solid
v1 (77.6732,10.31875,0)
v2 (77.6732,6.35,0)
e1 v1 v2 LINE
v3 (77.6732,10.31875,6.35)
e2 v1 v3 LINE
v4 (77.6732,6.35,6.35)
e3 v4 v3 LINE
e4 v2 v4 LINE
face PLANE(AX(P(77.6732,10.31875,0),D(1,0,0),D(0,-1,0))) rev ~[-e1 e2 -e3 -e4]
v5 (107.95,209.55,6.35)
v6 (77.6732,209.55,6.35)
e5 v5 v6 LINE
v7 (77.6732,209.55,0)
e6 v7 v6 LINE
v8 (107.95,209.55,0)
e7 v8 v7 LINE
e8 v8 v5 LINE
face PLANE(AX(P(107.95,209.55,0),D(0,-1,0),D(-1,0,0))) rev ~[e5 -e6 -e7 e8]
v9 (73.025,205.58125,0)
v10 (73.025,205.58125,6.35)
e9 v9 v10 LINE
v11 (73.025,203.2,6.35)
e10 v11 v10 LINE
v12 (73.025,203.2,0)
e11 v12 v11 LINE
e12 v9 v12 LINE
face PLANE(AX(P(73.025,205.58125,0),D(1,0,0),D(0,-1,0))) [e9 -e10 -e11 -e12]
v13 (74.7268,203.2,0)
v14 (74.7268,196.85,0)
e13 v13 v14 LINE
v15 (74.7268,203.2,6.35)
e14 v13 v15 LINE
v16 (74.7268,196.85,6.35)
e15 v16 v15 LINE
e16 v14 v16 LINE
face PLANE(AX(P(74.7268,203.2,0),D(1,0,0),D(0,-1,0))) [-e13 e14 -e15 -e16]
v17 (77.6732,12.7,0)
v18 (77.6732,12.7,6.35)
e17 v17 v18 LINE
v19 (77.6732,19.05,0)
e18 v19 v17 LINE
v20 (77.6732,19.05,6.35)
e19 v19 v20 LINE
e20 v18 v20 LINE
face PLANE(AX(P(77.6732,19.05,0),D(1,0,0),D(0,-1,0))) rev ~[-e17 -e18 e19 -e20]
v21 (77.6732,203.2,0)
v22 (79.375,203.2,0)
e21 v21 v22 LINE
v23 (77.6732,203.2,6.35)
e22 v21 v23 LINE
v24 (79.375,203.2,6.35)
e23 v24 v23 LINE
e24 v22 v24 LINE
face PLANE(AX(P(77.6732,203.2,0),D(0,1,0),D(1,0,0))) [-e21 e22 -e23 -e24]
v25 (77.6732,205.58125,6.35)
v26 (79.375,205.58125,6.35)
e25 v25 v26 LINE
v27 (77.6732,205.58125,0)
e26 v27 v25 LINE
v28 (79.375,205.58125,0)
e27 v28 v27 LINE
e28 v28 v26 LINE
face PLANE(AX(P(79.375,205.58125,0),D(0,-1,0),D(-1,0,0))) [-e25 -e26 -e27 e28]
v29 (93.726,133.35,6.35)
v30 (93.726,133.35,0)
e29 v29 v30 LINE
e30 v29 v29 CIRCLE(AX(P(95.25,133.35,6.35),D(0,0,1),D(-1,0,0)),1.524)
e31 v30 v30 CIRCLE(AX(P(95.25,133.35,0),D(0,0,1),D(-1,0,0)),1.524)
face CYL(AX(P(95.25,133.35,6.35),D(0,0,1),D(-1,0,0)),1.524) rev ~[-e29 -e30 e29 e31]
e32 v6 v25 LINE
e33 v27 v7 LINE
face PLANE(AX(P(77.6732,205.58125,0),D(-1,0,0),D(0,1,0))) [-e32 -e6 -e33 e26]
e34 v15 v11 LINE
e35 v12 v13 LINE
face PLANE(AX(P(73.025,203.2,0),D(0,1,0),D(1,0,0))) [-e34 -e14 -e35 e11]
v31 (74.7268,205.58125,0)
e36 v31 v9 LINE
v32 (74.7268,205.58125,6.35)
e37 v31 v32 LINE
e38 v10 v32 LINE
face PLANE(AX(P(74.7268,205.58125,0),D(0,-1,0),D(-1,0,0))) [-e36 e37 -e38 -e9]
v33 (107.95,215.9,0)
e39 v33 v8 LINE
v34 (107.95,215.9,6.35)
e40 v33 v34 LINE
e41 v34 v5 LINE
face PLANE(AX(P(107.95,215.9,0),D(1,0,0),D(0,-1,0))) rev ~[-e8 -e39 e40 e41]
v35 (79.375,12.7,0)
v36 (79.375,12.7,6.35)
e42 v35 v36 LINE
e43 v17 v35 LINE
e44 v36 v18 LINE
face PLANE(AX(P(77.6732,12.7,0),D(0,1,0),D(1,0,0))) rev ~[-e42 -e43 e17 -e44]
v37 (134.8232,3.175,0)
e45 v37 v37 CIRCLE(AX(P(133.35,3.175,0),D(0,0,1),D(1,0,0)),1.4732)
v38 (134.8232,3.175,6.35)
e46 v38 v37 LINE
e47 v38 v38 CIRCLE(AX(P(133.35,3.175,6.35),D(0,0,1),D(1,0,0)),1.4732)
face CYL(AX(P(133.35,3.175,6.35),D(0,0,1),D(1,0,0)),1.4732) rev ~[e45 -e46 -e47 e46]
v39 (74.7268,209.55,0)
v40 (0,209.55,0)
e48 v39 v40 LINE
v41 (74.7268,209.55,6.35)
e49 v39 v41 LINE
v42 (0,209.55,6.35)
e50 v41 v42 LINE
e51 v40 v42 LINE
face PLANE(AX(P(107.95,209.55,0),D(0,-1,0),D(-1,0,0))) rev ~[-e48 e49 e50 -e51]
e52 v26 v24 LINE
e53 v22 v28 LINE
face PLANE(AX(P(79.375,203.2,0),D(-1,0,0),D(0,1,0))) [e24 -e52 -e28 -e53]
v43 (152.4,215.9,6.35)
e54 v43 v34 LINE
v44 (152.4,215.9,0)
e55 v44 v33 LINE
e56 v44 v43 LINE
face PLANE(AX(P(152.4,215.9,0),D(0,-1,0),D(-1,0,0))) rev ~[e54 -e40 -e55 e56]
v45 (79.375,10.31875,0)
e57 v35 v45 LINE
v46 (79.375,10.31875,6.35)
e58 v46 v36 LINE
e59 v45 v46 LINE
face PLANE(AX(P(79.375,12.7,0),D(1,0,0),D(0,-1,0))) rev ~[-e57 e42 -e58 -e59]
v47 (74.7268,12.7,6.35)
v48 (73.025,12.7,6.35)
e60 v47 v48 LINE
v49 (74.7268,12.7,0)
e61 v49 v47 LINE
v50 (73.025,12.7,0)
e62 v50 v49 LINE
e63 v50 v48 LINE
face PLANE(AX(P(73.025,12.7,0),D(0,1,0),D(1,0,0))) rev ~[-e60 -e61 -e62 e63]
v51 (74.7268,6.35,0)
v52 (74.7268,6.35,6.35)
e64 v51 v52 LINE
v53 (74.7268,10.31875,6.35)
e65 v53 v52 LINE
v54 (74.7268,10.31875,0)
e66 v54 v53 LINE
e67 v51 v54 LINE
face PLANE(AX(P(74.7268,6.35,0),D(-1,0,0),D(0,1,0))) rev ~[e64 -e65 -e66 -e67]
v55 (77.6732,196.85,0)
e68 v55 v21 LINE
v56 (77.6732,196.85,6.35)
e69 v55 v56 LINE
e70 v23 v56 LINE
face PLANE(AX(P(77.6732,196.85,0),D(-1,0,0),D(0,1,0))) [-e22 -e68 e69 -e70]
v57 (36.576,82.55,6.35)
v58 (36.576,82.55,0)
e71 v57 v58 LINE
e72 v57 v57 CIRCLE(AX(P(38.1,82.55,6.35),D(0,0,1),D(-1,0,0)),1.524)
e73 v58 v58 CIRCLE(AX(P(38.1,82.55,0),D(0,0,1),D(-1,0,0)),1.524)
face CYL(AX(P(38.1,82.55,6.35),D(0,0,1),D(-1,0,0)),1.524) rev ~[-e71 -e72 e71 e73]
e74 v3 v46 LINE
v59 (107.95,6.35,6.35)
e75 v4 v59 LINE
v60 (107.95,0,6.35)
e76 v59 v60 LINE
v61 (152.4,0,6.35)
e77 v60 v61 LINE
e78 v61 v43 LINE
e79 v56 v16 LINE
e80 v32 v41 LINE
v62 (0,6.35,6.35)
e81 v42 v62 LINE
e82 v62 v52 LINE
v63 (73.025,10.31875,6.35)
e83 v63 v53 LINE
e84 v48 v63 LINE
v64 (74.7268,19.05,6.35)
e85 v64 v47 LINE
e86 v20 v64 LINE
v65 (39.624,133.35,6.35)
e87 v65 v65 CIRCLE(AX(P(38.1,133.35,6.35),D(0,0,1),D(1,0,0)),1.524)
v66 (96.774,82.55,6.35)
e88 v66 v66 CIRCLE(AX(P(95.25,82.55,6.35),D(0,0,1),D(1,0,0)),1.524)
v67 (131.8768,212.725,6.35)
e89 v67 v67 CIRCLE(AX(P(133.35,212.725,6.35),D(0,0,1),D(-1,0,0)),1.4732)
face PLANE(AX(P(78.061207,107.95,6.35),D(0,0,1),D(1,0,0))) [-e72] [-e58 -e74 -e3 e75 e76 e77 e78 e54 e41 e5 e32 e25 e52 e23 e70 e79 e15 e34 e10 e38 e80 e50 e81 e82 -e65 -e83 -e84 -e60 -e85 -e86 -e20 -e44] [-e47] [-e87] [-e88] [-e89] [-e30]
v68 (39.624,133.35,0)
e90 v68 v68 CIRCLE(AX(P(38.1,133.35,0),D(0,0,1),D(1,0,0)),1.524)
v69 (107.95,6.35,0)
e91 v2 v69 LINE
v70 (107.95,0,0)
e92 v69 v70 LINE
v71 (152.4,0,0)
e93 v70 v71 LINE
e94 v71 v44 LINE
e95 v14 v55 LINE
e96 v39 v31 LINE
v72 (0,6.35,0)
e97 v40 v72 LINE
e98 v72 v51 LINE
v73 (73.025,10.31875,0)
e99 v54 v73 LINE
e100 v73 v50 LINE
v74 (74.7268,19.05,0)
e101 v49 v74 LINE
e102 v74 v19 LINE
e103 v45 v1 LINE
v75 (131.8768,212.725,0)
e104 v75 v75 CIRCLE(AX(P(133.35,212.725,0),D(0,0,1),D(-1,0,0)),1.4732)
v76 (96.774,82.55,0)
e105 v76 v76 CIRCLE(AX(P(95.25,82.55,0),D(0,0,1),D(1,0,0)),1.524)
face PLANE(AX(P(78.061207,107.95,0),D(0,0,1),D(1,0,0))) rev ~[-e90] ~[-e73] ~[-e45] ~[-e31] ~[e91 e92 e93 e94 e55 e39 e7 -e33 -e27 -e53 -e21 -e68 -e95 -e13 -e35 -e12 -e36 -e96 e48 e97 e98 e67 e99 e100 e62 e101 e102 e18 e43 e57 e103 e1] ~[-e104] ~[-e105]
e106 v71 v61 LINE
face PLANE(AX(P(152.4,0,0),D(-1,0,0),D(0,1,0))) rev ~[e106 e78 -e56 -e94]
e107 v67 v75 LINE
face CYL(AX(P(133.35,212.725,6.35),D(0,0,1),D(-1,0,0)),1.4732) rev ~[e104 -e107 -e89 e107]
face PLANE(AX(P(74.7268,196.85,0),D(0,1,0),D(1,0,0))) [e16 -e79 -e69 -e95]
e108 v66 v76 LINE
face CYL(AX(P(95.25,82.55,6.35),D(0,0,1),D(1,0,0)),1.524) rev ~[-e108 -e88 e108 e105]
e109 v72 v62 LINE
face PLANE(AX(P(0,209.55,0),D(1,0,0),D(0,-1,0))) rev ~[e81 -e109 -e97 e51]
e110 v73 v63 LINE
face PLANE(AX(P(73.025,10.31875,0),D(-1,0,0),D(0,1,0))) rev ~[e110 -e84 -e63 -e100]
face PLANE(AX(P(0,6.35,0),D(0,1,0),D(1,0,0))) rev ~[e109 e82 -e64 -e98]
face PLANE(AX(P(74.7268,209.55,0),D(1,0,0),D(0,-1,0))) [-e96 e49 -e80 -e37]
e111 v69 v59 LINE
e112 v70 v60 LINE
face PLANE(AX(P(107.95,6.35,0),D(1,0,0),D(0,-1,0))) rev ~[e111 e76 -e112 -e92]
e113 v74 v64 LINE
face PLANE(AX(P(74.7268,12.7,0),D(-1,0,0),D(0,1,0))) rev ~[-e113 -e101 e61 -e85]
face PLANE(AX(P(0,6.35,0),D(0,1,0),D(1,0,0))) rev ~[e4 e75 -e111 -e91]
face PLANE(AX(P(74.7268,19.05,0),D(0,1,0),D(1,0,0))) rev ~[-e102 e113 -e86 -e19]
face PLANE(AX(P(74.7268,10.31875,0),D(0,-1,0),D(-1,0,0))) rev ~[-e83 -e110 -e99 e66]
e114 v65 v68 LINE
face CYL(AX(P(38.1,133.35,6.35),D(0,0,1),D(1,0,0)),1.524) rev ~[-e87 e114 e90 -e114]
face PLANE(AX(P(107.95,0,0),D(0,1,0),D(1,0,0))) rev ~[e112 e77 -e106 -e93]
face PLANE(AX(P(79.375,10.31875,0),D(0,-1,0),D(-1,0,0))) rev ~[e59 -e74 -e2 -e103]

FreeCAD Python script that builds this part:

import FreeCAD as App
import Part
import Sketcher
Q = App.Units.Quantity

doc = App.newDocument("Part")
body = doc.addObject("PartDesign::Body", "Body")

# Sketch on XY plane
sketch1 = body.newObject("Sketcher::SketchObject", "Sketch")
sketch1.AttachmentSupport = (doc.getObject("XY_Plane"), [""])
sketch1.MapMode = "FlatFace"
sketch1.addGeometry(Part.LineSegment(App.Vector(108, 216, 0), App.Vector(108, 210, 0)), False)
sketch1.addGeometry(Part.LineSegment(App.Vector(108, 210, 0), App.Vector(0, 210, 0)), False)
sketch1.addGeometry(Part.LineSegment(App.Vector(0, 210, 0), App.Vector(0, 6, 0)), False)
sketch1.addGeometry(Part.LineSegment(App.Vector(0, 6, 0), App.Vector(108, 6, 0)), False)
sketch1.addGeometry(Part.LineSegment(App.Vector(108, 6, 0), App.Vector(108, 0, 0)), False)
sketch1.addGeometry(Part.LineSegment(App.Vector(108, 0, 0), App.Vector(152, 0, 0)), False)
sketch1.addGeometry(Part.LineSegment(App.Vector(152, 0, 0), App.Vector(152, 216, 0)), False)
sketch1.addGeometry(Part.LineSegment(App.Vector(152, 216, 0), App.Vector(108, 216, 0)), False)
sketch1.addConstraint(Sketcher.Constraint("Coincident", 0, 2, 1, 1))
sketch1.addConstraint(Sketcher.Constraint("Coincident", 1, 2, 2, 1))
sketch1.addConstraint(Sketcher.Constraint("Coincident", 2, 2, 3, 1))
sketch1.addConstraint(Sketcher.Constraint("Coincident", 3, 2, 4, 1))
sketch1.addConstraint(Sketcher.Constraint("Coincident", 4, 2, 5, 1))
sketch1.addConstraint(Sketcher.Constraint("Coincident", 5, 2, 6, 1))
sketch1.addConstraint(Sketcher.Constraint("Coincident", 6, 2, 7, 1))
sketch1.addConstraint(Sketcher.Constraint("Coincident", 7, 2, 0, 1))
sketch1.addConstraint(Sketcher.Constraint("Vertical", 0))
sketch1.addConstraint(Sketcher.Constraint("Horizontal", 1))
sketch1.addConstraint(Sketcher.Constraint("Vertical", 2))
sketch1.addConstraint(Sketcher.Constraint("Horizontal", 3))
sketch1.addConstraint(Sketcher.Constraint("Vertical", 4))
sketch1.addConstraint(Sketcher.Constraint("Horizontal", 5))
sketch1.addConstraint(Sketcher.Constraint("Vertical", 6))
sketch1.addConstraint(Sketcher.Constraint("Horizontal", 7))
sketch1.addConstraint(Sketcher.Constraint("PointOnObject", 1, 2, -2))
sketch1.addConstraint(Sketcher.Constraint("PointOnObject", 4, 2, -1))
sketch1.addConstraint(Sketcher.Constraint("Vertical", 0, 2, 3, 2))
sketch1.addConstraint(Sketcher.Constraint("Equal", 0, 4))
sketch1.addConstraint(Sketcher.Constraint("DistanceY", 2, 2, 2, 1, Q("8 in")))
sketch1.addConstraint(Sketcher.Constraint("DistanceY", 6, 1, 6, 2, Q("8.5 in")))
sketch1.addConstraint(Sketcher.Constraint("DistanceX", -1, 1, 5, 2, Q("6 in")))
sketch1.addConstraint(Sketcher.Constraint("DistanceX", 1, 2, 1, 1, Q("4.25 in")))
pad1 = body.newObject("PartDesign::Pad", "Pad")
pad1.Profile = sketch1
pad1.Length = Q("0.25 in")

# Sketch on XY plane
sketch2 = body.newObject("Sketcher::SketchObject", "Sketch001")
sketch2.AttachmentSupport = (doc.getObject("XY_Plane"), [""])
sketch2.MapMode = "FlatFace"
sketch2.AttachmentOffset = App.Placement(App.Vector(0, 0, 0.25 * 25.4), App.Rotation())
sketch2.addGeometry(Part.Circle(App.Vector(133.3, 212.7, 0), App.Vector(0, 0, 1), 1.5), False)
sketch2.addGeometry(Part.Circle(App.Vector(133.3, 3.2, 0), App.Vector(0, 0, 1), 1.5), False)
sketch2.addConstraint(Sketcher.Constraint("Equal", 0, 1))
sketch2.addConstraint(Sketcher.Constraint("Vertical", 0, 3, 1, 3))
sketch2.addConstraint(Sketcher.Constraint("Diameter", 0, Q("0.116 in")))
sketch2.addConstraint(Sketcher.Constraint("DistanceX", -1, 1, 0, 3, Q("5.25 in")))
sketch2.addConstraint(Sketcher.Constraint("DistanceY", 1, 3, 0, 3, Q("8.25 in")))
sketch2.addConstraint(Sketcher.Constraint("DistanceY", -1, 1, 0, 3, Q("8.375 in")))
pocket1 = body.newObject("PartDesign::Pocket", "Pocket")
pocket1.Profile = sketch2
pocket1.Type = "ThroughAll"

# Sketch on XY plane
sketch3 = body.newObject("Sketcher::SketchObject", "Sketch002")
sketch3.AttachmentSupport = (doc.getObject("XY_Plane"), [""])
sketch3.MapMode = "FlatFace"
sketch3.AttachmentOffset = App.Placement(App.Vector(0, 0, 0.25 * 25.4), App.Rotation())
sketch3.addGeometry(Part.Circle(App.Vector(95.2, 133.3, 0), App.Vector(0, 0, 1), 1.5), False)
sketch3.addGeometry(Part.Circle(App.Vector(95.2, 82.5, 0), App.Vector(0, 0, 1), 1.5), False)
sketch3.addConstraint(Sketcher.Constraint("Equal", 0, 1))
sketch3.addConstraint(Sketcher.Constraint("Vertical", 0, 3, 1, 3))
sketch3.addConstraint(Sketcher.Constraint("Diameter", 0, Q("0.12 in")))
sketch3.addConstraint(Sketcher.Constraint("DistanceY", 1, 3, 0, 3, Q("2 in")))
sketch3.addConstraint(Sketcher.Constraint("DistanceX", -1, 1, 0, 3, Q("3.75 in")))
sketch3.addConstraint(Sketcher.Constraint("DistanceY", -1, 1, 0, 3, Q("5.25 in")))
pocket2 = body.newObject("PartDesign::Pocket", "Pocket001")
pocket2.Profile = sketch3
pocket2.Type = "ThroughAll"

# Sketch on XY plane
sketch4 = body.newObject("Sketcher::SketchObject", "Sketch003")
sketch4.AttachmentSupport = (doc.getObject("XY_Plane"), [""])
sketch4.MapMode = "FlatFace"
sketch4.AttachmentOffset = App.Placement(App.Vector(0, 0, 0.25 * 25.4), App.Rotation())
sketch4.addGeometry(Part.Circle(App.Vector(38.1, 133.3, 0), App.Vector(0, 0, 1), 1.5), False)
sketch4.addGeometry(Part.Circle(App.Vector(38.1, 82.5, 0), App.Vector(0, 0, 1), 1.5), False)
sketch4.addConstraint(Sketcher.Constraint("Equal", 0, 1))
sketch4.addConstraint(Sketcher.Constraint("Vertical", 0, 3, 1, 3))
sketch4.addConstraint(Sketcher.Constraint("Diameter", 0, Q("0.12 in")))
sketch4.addConstraint(Sketcher.Constraint("DistanceY", 1, 3, 0, 3, Q("2 in")))
sketch4.addConstraint(Sketcher.Constraint("DistanceX", -1, 1, 0, 3, Q("1.5 in")))
sketch4.addConstraint(Sketcher.Constraint("DistanceY", -1, 1, 0, 3, Q("5.25 in")))
pocket3 = body.newObject("PartDesign::Pocket", "Pocket002")
pocket3.Profile = sketch4
pocket3.Type = "ThroughAll"

# Sketch on XY plane
sketch5 = body.newObject("Sketcher::SketchObject", "Sketch004")
sketch5.AttachmentSupport = (doc.getObject("XY_Plane"), [""])
sketch5.MapMode = "FlatFace"
sketch5.addGeometry(Part.LineSegment(App.Vector(77.7, 6.3, 0), App.Vector(74.7, 6.3, 0)), False)
sketch5.addGeometry(Part.LineSegment(App.Vector(74.7, 6.3, 0), App.Vector(74.7, 10.3, 0)), False)
sketch5.addGeometry(Part.LineSegment(App.Vector(74.7, 10.3, 0), App.Vector(73, 10.3, 0)), False)
sketch5.addGeometry(Part.LineSegment(App.Vector(73, 10.3, 0), App.Vector(73, 12.7, 0)), False)
sketch5.addGeometry(Part.LineSegment(App.Vector(73, 12.7, 0), App.Vector(74.7, 12.7, 0)), False)
sketch5.addGeometry(Part.LineSegment(App.Vector(74.7, 12.7, 0), App.Vector(74.7, 19.1, 0)), False)
sketch5.addGeometry(Part.LineSegment(App.Vector(74.7, 19.1, 0), App.Vector(77.7, 19.1, 0)), False)
sketch5.addGeometry(Part.LineSegment(App.Vector(77.7, 19.1, 0), App.Vector(77.7, 12.7, 0)), False)
sketch5.addGeometry(Part.LineSegment(App.Vector(77.7, 12.7, 0), App.Vector(79.4, 12.7, 0)), False)
sketch5.addGeometry(Part.LineSegment(App.Vector(79.4, 12.7, 0), App.Vector(79.4, 10.3, 0)), False)
sketch5.addGeometry(Part.LineSegment(App.Vector(79.4, 10.3, 0), App.Vector(77.7, 10.3, 0)), False)
sketch5.addGeometry(Part.LineSegment(App.Vector(77.7, 10.3, 0), App.Vector(77.7, 6.3, 0)), False)
sketch5.addGeometry(Part.LineSegment(App.Vector(73, 203.2, 0), App.Vector(73, 205.6, 0)), False)
sketch5.addGeometry(Part.LineSegment(App.Vector(73, 205.6, 0), App.Vector(74.7, 205.6, 0)), False)
sketch5.addGeometry(Part.LineSegment(App.Vector(74.7, 205.6, 0), App.Vector(74.7, 209.6, 0)), False)
sketch5.addGeometry(Part.LineSegment(App.Vector(74.7, 209.6, 0), App.Vector(77.7, 209.6, 0)), False)
sketch5.addGeometry(Part.LineSegment(App.Vector(77.7, 209.6, 0), App.Vector(77.7, 205.6, 0)), False)
sketch5.addGeometry(Part.LineSegment(App.Vector(77.7, 205.6, 0), App.Vector(79.4, 205.6, 0)), False)
sketch5.addGeometry(Part.LineSegment(App.Vector(79.4, 205.6, 0), App.Vector(79.4, 203.2, 0)), False)
sketch5.addGeometry(Part.LineSegment(App.Vector(79.4, 203.2, 0), App.Vector(77.7, 203.2, 0)), False)
sketch5.addGeometry(Part.LineSegment(App.Vector(77.7, 203.2, 0), App.Vector(77.7, 196.8, 0)), False)
sketch5.addGeometry(Part.LineSegment(App.Vector(77.7, 196.8, 0), App.Vector(74.7, 196.8, 0)), False)
sketch5.addGeometry(Part.LineSegment(App.Vector(74.7, 196.8, 0), App.Vector(74.7, 203.2, 0)), False)
sketch5.addGeometry(Part.LineSegment(App.Vector(74.7, 203.2, 0), App.Vector(73, 203.2, 0)), False)
sketch5.addConstraint(Sketcher.Constraint("Coincident", 0, 2, 1, 1))
sketch5.addConstraint(Sketcher.Constraint("Coincident", 1, 2, 2, 1))
sketch5.addConstraint(Sketcher.Constraint("Coincident", 2, 2, 3, 1))
sketch5.addConstraint(Sketcher.Constraint("Coincident", 3, 2, 4, 1))
sketch5.addConstraint(Sketcher.Constraint("Coincident", 4, 2, 5, 1))
sketch5.addConstraint(Sketcher.Constraint("Coincident", 5, 2, 6, 1))
sketch5.addConstraint(Sketcher.Constraint("Coincident", 6, 2, 7, 1))
sketch5.addConstraint(Sketcher.Constraint("Coincident", 7, 2, 8, 1))
sketch5.addConstraint(Sketcher.Constraint("Coincident", 8, 2, 9, 1))
sketch5.addConstraint(Sketcher.Constraint("Coincident", 9, 2, 10, 1))
sketch5.addConstraint(Sketcher.Constraint("Coincident", 10, 2, 11, 1))
sketch5.addConstraint(Sketcher.Constraint("Coincident", 11, 2, 0, 1))
sketch5.addConstraint(Sketcher.Constraint("Coincident", 12, 2, 13, 1))
sketch5.addConstraint(Sketcher.Constraint("Coincident", 13, 2, 14, 1))
sketch5.addConstraint(Sketcher.Constraint("Coincident", 14, 2, 15, 1))
sketch5.addConstraint(Sketcher.Constraint("Coincident", 15, 2, 16, 1))
sketch5.addConstraint(Sketcher.Constraint("Coincident", 16, 2, 17, 1))
sketch5.addConstraint(Sketcher.Constraint("Coincident", 17, 2, 18, 1))
sketch5.addConstraint(Sketcher.Constraint("Coincident", 18, 2, 19, 1))
sketch5.addConstraint(Sketcher.Constraint("Coincident", 19, 2, 20, 1))
sketch5.addConstraint(Sketcher.Constraint("Coincident", 20, 2, 21, 1))
sketch5.addConstraint(Sketcher.Constraint("Coincident", 21, 2, 22, 1))
sketch5.addConstraint(Sketcher.Constraint("Coincident", 22, 2, 23, 1))
sketch5.addConstraint(Sketcher.Constraint("Coincident", 23, 2, 12, 1))
sketch5.addConstraint(Sketcher.Constraint("Horizontal", 0))
sketch5.addConstraint(Sketcher.Constraint("Vertical", 1))
sketch5.addConstraint(Sketcher.Constraint("Horizontal", 2))
sketch5.addConstraint(Sketcher.Constraint("Vertical", 3))
sketch5.addConstraint(Sketcher.Constraint("Horizontal", 4))
sketch5.addConstraint(Sketcher.Constraint("Vertical", 5))
sketch5.addConstraint(Sketcher.Constraint("Horizontal", 6))
sketch5.addConstraint(Sketcher.Constraint("Vertical", 7))
sketch5.addConstraint(Sketcher.Constraint("Horizontal", 8))
sketch5.addConstraint(Sketcher.Constraint("Vertical", 9))
sketch5.addConstraint(Sketcher.Constraint("Horizontal", 10))
sketch5.addConstraint(Sketcher.Constraint("Vertical", 11))
sketch5.addConstraint(Sketcher.Constraint("Vertical", 12))
sketch5.addConstraint(Sketcher.Constraint("Horizontal", 13))
sketch5.addConstraint(Sketcher.Constraint("Vertical", 14))
sketch5.addConstraint(Sketcher.Constraint("Horizontal", 15))
sketch5.addConstraint(Sketcher.Constraint("Vertical", 16))
sketch5.addConstraint(Sketcher.Constraint("Horizontal", 17))
sketch5.addConstraint(Sketcher.Constraint("Vertical", 18))
sketch5.addConstraint(Sketcher.Constraint("Horizontal", 19))
sketch5.addConstraint(Sketcher.Constraint("Vertical", 20))
sketch5.addConstraint(Sketcher.Constraint("Horizontal", 21))
sketch5.addConstraint(Sketcher.Constraint("Vertical", 22))
sketch5.addConstraint(Sketcher.Constraint("Horizontal", 23))
sketch5.addConstraint(Sketcher.Constraint("Horizontal", 4, 2, 7, 2))
sketch5.addConstraint(Sketcher.Constraint("Horizontal", 2, 2, 9, 2))
sketch5.addConstraint(Sketcher.Constraint("Horizontal", 13, 2, 16, 2))
sketch5.addConstraint(Sketcher.Constraint("Horizontal", 19, 2, 22, 2))
sketch5.addConstraint(Sketcher.Constraint("Vertical", 1, 2, 4, 2))
sketch5.addConstraint(Sketcher.Constraint("Vertical", 7, 2, 10, 2))
sketch5.addConstraint(Sketcher.Constraint("Vertical", 3, 2, 12, 2))
sketch5.addConstraint(Sketcher.Constraint("Vertical", 5, 2, 13, 2))
sketch5.addConstraint(Sketcher.Constraint("Vertical", 11, 2, 15, 2))
sketch5.addConstraint(Sketcher.Constraint("Vertical", 9, 2, 17, 2))
sketch5.addConstraint(Sketcher.Constraint("Vertical", 16, 2, 19, 2))
sketch5.addConstraint(Sketcher.Constraint("Vertical", 14, 2, 21, 2))
sketch5.addConstraint(Sketcher.Constraint("Equal", 4, 8))
sketch5.addConstraint(Sketcher.Constraint("Equal", 9, 12))
sketch5.addConstraint(Sketcher.Constraint("Equal", 11, 14))
sketch5.addConstraint(Sketcher.Constraint("Equal", 7, 20))
sketch5.addConstraint(Sketcher.Constraint("DistanceY", -1, 1, 18, 2, Q("8 in")))
sketch5.addConstraint(Sketcher.Constraint("DistanceY", 5, 1, 5, 2, Q("0.25 in")))
sketch5.addConstraint(Sketcher.Constraint("DistanceY", -1, 1, 3, 2, Q("0.5 in")))
sketch5.addConstraint(Sketcher.Constraint("DistanceY", 0, 2, 5, 2, Q("0.5 in")))
sketch5.addConstraint(Sketcher.Constraint("DistanceX", 0, 2, 0, 1, Q("0.116 in")))
sketch5.addConstraint(Sketcher.Constraint("DistanceX", 2, 2, 2, 1, Q("0.067 in")))
sketch5.addConstraint(Sketcher.Constraint("DistanceY", 1, 1, 1, 2, Q("0.15625 in")))
sketch5.addConstraint(Sketcher.Constraint("DistanceX", -1, 1, 0, 2, Q("2.942 in")))
pocket4 = body.newObject("PartDesign::Pocket", "Pocket003")
pocket4.Profile = sketch5
pocket4.Type = "ThroughAll"
pocket4.Reversed = True

doc.recompute()
